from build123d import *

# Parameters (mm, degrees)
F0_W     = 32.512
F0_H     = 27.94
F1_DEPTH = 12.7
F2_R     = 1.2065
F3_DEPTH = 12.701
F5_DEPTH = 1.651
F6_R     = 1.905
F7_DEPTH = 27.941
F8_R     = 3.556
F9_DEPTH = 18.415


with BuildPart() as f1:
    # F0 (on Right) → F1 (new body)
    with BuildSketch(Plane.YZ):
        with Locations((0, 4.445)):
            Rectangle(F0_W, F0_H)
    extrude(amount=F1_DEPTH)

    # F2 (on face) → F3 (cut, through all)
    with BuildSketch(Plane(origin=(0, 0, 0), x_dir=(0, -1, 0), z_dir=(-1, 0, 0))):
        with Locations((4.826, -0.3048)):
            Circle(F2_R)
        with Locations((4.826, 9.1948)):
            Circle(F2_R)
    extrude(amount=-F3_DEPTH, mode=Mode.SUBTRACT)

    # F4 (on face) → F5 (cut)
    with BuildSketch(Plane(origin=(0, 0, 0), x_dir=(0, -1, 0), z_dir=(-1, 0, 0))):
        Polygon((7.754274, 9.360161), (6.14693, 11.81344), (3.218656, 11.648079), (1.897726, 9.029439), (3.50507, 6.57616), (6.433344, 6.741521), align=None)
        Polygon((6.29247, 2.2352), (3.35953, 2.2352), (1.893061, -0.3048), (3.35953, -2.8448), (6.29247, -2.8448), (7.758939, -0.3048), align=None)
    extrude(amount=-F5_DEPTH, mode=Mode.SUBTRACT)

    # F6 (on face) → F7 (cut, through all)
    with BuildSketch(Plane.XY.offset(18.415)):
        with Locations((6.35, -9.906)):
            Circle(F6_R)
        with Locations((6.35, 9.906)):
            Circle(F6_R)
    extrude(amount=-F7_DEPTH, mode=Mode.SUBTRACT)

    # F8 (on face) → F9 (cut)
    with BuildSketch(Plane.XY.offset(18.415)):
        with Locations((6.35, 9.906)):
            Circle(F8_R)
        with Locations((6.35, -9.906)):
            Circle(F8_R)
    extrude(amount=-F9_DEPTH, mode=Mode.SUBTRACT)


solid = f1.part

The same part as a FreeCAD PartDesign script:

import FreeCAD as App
import Part
import Sketcher

V = App.Vector
Q = App.Units.Quantity

doc = App.newDocument("Part")
body = doc.addObject("PartDesign::Body", "Body")

# Sketch on YZ plane
sketch1 = body.newObject("Sketcher::SketchObject", "Sketch")
sketch1.AttachmentSupport = (doc.getObject("YZ_Plane"), [""])
sketch1.MapMode = "FlatFace"
sketch1.addGeometry(Part.LineSegment(V(-16, 18, 0), V(-16, -10, 0)), False)
sketch1.addGeometry(Part.LineSegment(V(-16, -10, 0), V(16, -10, 0)), False)
sketch1.addGeometry(Part.LineSegment(V(16, -10, 0), V(16, 18, 0)), False)
sketch1.addGeometry(Part.LineSegment(V(16, 18, 0), V(-16, 18, 0)), False)
sketch1.addConstraint(Sketcher.Constraint("Coincident", 0, 2, 1, 1))
sketch1.addConstraint(Sketcher.Constraint("Coincident", 1, 2, 2, 1))
sketch1.addConstraint(Sketcher.Constraint("Coincident", 2, 2, 3, 1))
sketch1.addConstraint(Sketcher.Constraint("Coincident", 3, 2, 0, 1))
sketch1.addConstraint(Sketcher.Constraint("Vertical", 0))
sketch1.addConstraint(Sketcher.Constraint("Horizontal", 1))
sketch1.addConstraint(Sketcher.Constraint("Vertical", 2))
sketch1.addConstraint(Sketcher.Constraint("Horizontal", 3))
sketch1.addConstraint(Sketcher.Constraint("DistanceY", 0, 2, 0, 1, Q("1.1 in")))
sketch1.addConstraint(Sketcher.Constraint("DistanceX", 1, 1, 1, 2, Q("1.28 in")))
sketch1.addConstraint(Sketcher.Constraint("DistanceX", 0, 2, -1, 1, Q("0.64 in")))
sketch1.addConstraint(Sketcher.Constraint("DistanceY", 0, 2, -1, 1, Q("0.375 in")))
pad1 = body.newObject("PartDesign::Pad", "Pad")
pad1.Profile = sketch1
pad1.Length = Q("0.5 in")

# Sketch on YZ plane
sketch2 = body.newObject("Sketcher::SketchObject", "Sketch001")
sketch2.AttachmentSupport = (doc.getObject("YZ_Plane"), [""])
sketch2.MapMode = "FlatFace"
sketch2.addGeometry(Part.Circle(V(-4.8, -0.3, 0), V(0, 0, 1), 1.2), False)
sketch2.addGeometry(Part.Circle(V(-4.8, 9.2, 0), V(0, 0, 1), 1.2), False)
sketch2.addConstraint(Sketcher.Constraint("Equal", 0, 1))
sketch2.addConstraint(Sketcher.Constraint("Vertical", 0, 3, 1, 3))
sketch2.addConstraint(Sketcher.Constraint("Diameter", 0, Q("0.095 in")))
sketch2.addConstraint(Sketcher.Constraint("DistanceX", 0, 3, -1, 1, Q("0.19 in")))
sketch2.addConstraint(Sketcher.Constraint("DistanceY", 0, 3, -1, 1, Q("0.012 in")))
sketch2.addConstraint(Sketcher.Constraint("DistanceY", -1, 1, 1, 3, Q("0.362 in")))
pocket1 = body.newObject("PartDesign::Pocket", "Pocket")
pocket1.Profile = sketch2
pocket1.Type = "ThroughAll"
pocket1.Reversed = True

# Sketch on YZ plane
sketch3 = body.newObject("Sketcher::SketchObject", "Sketch002")
sketch3.AttachmentSupport = (doc.getObject("YZ_Plane"), [""])
sketch3.MapMode = "FlatFace"
sketch3.addGeometry(Part.LineSegment(V(-7.8, 9.4, 0), V(-6.1, 11.8, 0)), False)
sketch3.addGeometry(Part.LineSegment(V(-6.1, 11.8, 0), V(-3.2, 11.6, 0)), False)
sketch3.addGeometry(Part.LineSegment(V(-3.2, 11.6, 0), V(-1.9, 9, 0)), False)
sketch3.addGeometry(Part.LineSegment(V(-1.9, 9, 0), V(-3.5, 6.6, 0)), False)
sketch3.addGeometry(Part.LineSegment(V(-3.5, 6.6, 0), V(-6.4, 6.7, 0)), False)
sketch3.addGeometry(Part.LineSegment(V(-6.4, 6.7, 0), V(-7.8, 9.4, 0)), False)
sketch3.addGeometry(Part.LineSegment(V(-6.3, 2.2, 0), V(-3.4, 2.2, 0)), False)
sketch3.addGeometry(Part.LineSegment(V(-3.4, 2.2, 0), V(-1.9, -0.3, 0)), False)
sketch3.addGeometry(Part.LineSegment(V(-1.9, -0.3, 0), V(-3.4, -2.8, 0)), False)
sketch3.addGeometry(Part.LineSegment(V(-3.4, -2.8, 0), V(-6.3, -2.8, 0)), False)
sketch3.addGeometry(Part.LineSegment(V(-6.3, -2.8, 0), V(-7.8, -0.3, 0)), False)
sketch3.addGeometry(Part.LineSegment(V(-7.8, -0.3, 0), V(-6.3, 2.2, 0)), False)
sketch3.addConstraint(Sketcher.Constraint("Coincident", 0, 2, 1, 1))
sketch3.addConstraint(Sketcher.Constraint("Coincident", 1, 2, 2, 1))
sketch3.addConstraint(Sketcher.Constraint("Coincident", 2, 2, 3, 1))
sketch3.addConstraint(Sketcher.Constraint("Coincident", 3, 2, 4, 1))
sketch3.addConstraint(Sketcher.Constraint("Coincident", 4, 2, 5, 1))
sketch3.addConstraint(Sketcher.Constraint("Coincident", 5, 2, 0, 1))
sketch3.addConstraint(Sketcher.Constraint("Coincident", 6, 2, 7, 1))
sketch3.addConstraint(Sketcher.Constraint("Coincident", 7, 2, 8, 1))
sketch3.addConstraint(Sketcher.Constraint("Coincident", 8, 2, 9, 1))
sketch3.addConstraint(Sketcher.Constraint("Coincident", 9, 2, 10, 1))
sketch3.addConstraint(Sketcher.Constraint("Coincident", 10, 2, 11, 1))
sketch3.addConstraint(Sketcher.Constraint("Coincident", 11, 2, 6, 1))
sketch3.addConstraint(Sketcher.Constraint("Horizontal", 6))
sketch3.addConstraint(Sketcher.Constraint("Horizontal", 9))
sketch3.addConstraint(Sketcher.Constraint("Parallel", 0, 3))
sketch3.addConstraint(Sketcher.Constraint("Parallel", 1, 4))
sketch3.addConstraint(Sketcher.Constraint("Parallel", 2, 5))
sketch3.addConstraint(Sketcher.Constraint("Parallel", 7, 10))
sketch3.addConstraint(Sketcher.Constraint("Parallel", 8, 11))
sketch3.addConstraint(Sketcher.Constraint("Horizontal", 7, 2, 10, 2))
sketch3.addConstraint(Sketcher.Constraint("Vertical", 6, 2, 8, 2))
sketch3.addConstraint(Sketcher.Constraint("Vertical", 9, 2, 11, 2))
sketch3.addConstraint(Sketcher.Constraint("Equal", 0, 1))
sketch3.addConstraint(Sketcher.Constraint("Equal", 1, 2))
sketch3.addConstraint(Sketcher.Constraint("Equal", 2, 3))
sketch3.addConstraint(Sketcher.Constraint("Equal", 5, 7))
sketch3.addConstraint(Sketcher.Constraint("Angle", 7, Q("-60.000012 deg")))
sketch3.addConstraint(Sketcher.Constraint("DistanceY", 7, 2, 6, 2, Q("0.1 in")))
sketch3.addConstraint(Sketcher.Constraint("DistanceY", -1, 1, 6, 2, Q("0.088 in")))
sketch3.addConstraint(Sketcher.Constraint("DistanceX", 6, 1, 6, 2, 2.93294))
sketch3.addConstraint(Sketcher.Constraint("DistanceY", 2, 2, 0, 2, 2.784001))
sketch3.addConstraint(Sketcher.Constraint("DistanceX", 9, 2, 3, 2, 2.7874))
sketch3.addConstraint(Sketcher.Constraint("DistanceX", 0, 2, -1, 1, 6.14693))
sketch3.addConstraint(Sketcher.Constraint("DistanceY", -1, 1, 0, 2, 11.81344))
sketch3.addConstraint(Sketcher.Constraint("DistanceY", -1, 1, 1, 2, 11.648079))
sketch3.addConstraint(Sketcher.Constraint("DistanceX", 3, 2, -1, 1, 3.50507))
pocket2 = body.newObject("PartDesign::Pocket", "Pocket001")
pocket2.Profile = sketch3
pocket2.Length = Q("0.065 in")
pocket2.Reversed = True

# Sketch on XY plane
sketch4 = body.newObject("Sketcher::SketchObject", "Sketch003")
sketch4.AttachmentSupport = (doc.getObject("XY_Plane"), [""])
sketch4.MapMode = "FlatFace"
sketch4.AttachmentOffset = App.Placement(V(0, 0, 0.725 * 25.4), App.Rotation())
sketch4.addGeometry(Part.Circle(V(6.3, -9.9, 0), V(0, 0, 1), 1.9), False)
sketch4.addGeometry(Part.Circle(V(6.3, 9.9, 0), V(0, 0, 1), 1.9), False)
sketch4.addConstraint(Sketcher.Constraint("Equal", 0, 1))
sketch4.addConstraint(Sketcher.Constraint("Symmetric", 0, 3, 1, 3, -1))
sketch4.addConstraint(Sketcher.Constraint("Diameter", 0, Q("0.15 in")))
sketch4.addConstraint(Sketcher.Constraint("DistanceX", -1, 1, 0, 3, Q("0.25 in")))
sketch4.addConstraint(Sketcher.Constraint("DistanceY", 0, 3, -1, 1, Q("0.39 in")))
pocket3 = body.newObject("PartDesign::Pocket", "Pocket002")
pocket3.Profile = sketch4
pocket3.Type = "ThroughAll"

# Sketch on XY plane
sketch5 = body.newObject("Sketcher::SketchObject", "Sketch004")
sketch5.AttachmentSupport = (doc.getObject("XY_Plane"), [""])
sketch5.MapMode = "FlatFace"
sketch5.AttachmentOffset = App.Placement(V(0, 0, 0.725 * 25.4), App.Rotation())
sketch5.addGeometry(Part.Circle(V(6.3, 9.9, 0), V(0, 0, 1), 3.6), False)
sketch5.addGeometry(Part.Circle(V(6.3, -9.9, 0), V(0, 0, 1), 3.6), False)
sketch5.addConstraint(Sketcher.Constraint("Equal", 0, 1))
sketch5.addConstraint(Sketcher.Constraint("Symmetric", 0, 3, 1, 3, -1))
sketch5.addConstraint(Sketcher.Constraint("Diameter", 0, Q("0.28 in")))
sketch5.addConstraint(Sketcher.Constraint("DistanceX", -1, 1, 0, 3, Q("0.25 in")))
sketch5.addConstraint(Sketcher.Constraint("DistanceY", -1, 1, 0, 3, Q("0.39 in")))
pocket4 = body.newObject("PartDesign::Pocket", "Pocket003")
pocket4.Profile = sketch5
pocket4.Length = Q("0.725 in")

doc.recompute()
